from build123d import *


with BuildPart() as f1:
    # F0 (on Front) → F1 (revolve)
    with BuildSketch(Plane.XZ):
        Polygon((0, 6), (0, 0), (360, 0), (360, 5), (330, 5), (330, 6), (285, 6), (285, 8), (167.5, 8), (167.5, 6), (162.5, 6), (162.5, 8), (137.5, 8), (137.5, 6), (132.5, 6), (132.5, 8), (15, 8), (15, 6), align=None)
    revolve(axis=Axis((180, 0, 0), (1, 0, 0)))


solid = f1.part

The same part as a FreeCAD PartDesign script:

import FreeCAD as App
import Part
import Sketcher

V = App.Vector


def add_polygon(sketch, points):
    """Adds a closed chain of lines whose ends are joined by coincident constraints."""
    first, n = sketch.GeometryCount, len(points)
    for a, b in zip(points, points[1:] + points[:1]):
        sketch.addGeometry(Part.LineSegment(App.Vector(*a, 0), App.Vector(*b, 0)), False)
    for i in range(n):
        sketch.addConstraint(Sketcher.Constraint("Coincident", first + i, 2, first + (i + 1) % n, 1))

doc = App.newDocument("Part")
body = doc.addObject("PartDesign::Body", "Body")

sketch1 = doc.addObject("Sketcher::SketchObject", "Sketch")
body.addObject(sketch1)
sketch1.AttachmentSupport = (doc.XZ_Plane, [""])
sketch1.MapMode = "FlatFace"
add_polygon(sketch1, [(0, 6), (0, 0), (360, 0), (360, 5), (330, 5), (330, 6), (285, 6), (285, 8), (167.5, 8), (167.5, 6), (162.5, 6), (162.5, 8), (137.5, 8), (137.5, 6), (132.5, 6), (132.5, 8), (15, 8), (15, 6)])
sketch1.addConstraint([
    Sketcher.Constraint("Vertical", 0),
    Sketcher.Constraint("Horizontal", 1),
    Sketcher.Constraint("Vertical", 2),
    Sketcher.Constraint("Horizontal", 3),
    Sketcher.Constraint("Vertical", 4),
    Sketcher.Constraint("Horizontal", 5),
    Sketcher.Constraint("Vertical", 6),
    Sketcher.Constraint("Horizontal", 7),
    Sketcher.Constraint("Vertical", 8),
    Sketcher.Constraint("Horizontal", 9),
    Sketcher.Constraint("Vertical", 10),
    Sketcher.Constraint("Horizontal", 11),
    Sketcher.Constraint("Vertical", 12),
    Sketcher.Constraint("Horizontal", 13),
    Sketcher.Constraint("Vertical", 14),
    Sketcher.Constraint("Horizontal", 15),
    Sketcher.Constraint("Vertical", 16),
    Sketcher.Constraint("Horizontal", 17),
    Sketcher.Constraint("Coincident", 0, 2, -1, 1),
    Sketcher.Constraint("Horizontal", 5, 2, 8, 2),
    Sketcher.Constraint("Horizontal", 7, 2, 10, 2),
    Sketcher.Constraint("Horizontal", 9, 2, 12, 2),
    Sketcher.Constraint("Horizontal", 11, 2, 14, 2),
    Sketcher.Constraint("Horizontal", 13, 2, 16, 2),
    Sketcher.Constraint("Equal", 9, 13),
    Sketcher.Constraint("Equal", 7, 15),
    Sketcher.Constraint("Equal", 13, 2),
    Sketcher.Constraint("DistanceX", 1, 1, 1, 2, 360.0),
    Sketcher.Constraint("DistanceX", 3, 2, 3, 1, 30.0),
    Sketcher.Constraint("DistanceX", 5, 2, 5, 1, 45.0),
    Sketcher.Constraint("DistanceX", 9, 2, 9, 1, 5.0),
    Sketcher.Constraint("DistanceX", 11, 2, 11, 1, 25.0),
    Sketcher.Constraint("DistanceX", 17, 2, 17, 1, 15.0),
    Sketcher.Constraint("DistanceY", 0, 2, 0, 1, 6.0),
    Sketcher.Constraint("DistanceY", 6, 1, 6, 2, 2.0),
])
revolution = doc.addObject("PartDesign::Revolution", "Revolution")
body.addObject(revolution)
revolution.Profile = sketch1
revolution.ReferenceAxis = (sketch1, ["H_Axis"])
revolution.Angle = 360

doc.recompute()
